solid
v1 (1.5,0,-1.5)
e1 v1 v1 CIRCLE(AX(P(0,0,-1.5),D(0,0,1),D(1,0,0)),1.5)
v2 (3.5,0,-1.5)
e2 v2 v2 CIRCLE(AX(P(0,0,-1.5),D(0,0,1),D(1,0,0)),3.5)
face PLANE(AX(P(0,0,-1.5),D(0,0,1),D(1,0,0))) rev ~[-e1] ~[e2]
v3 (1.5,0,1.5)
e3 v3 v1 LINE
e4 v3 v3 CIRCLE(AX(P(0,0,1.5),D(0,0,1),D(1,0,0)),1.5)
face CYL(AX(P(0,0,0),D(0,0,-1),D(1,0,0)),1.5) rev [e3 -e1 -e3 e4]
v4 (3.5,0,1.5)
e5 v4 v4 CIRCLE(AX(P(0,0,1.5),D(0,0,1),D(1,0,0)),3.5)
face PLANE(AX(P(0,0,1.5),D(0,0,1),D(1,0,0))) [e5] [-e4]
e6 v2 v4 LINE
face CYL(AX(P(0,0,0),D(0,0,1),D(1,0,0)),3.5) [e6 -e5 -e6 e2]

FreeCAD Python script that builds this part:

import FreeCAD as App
import Part
import Sketcher
from FreeCAD import Vector

doc = App.newDocument("Part")
body = doc.addObject("PartDesign::Body", "Body")

# Sketch on XY plane
sketch1 = body.newObject("Sketcher::SketchObject", "Sketch")
sketch1.AttachmentSupport = (doc.getObject("XY_Plane"), [""])
sketch1.MapMode = "FlatFace"
sketch1.addGeometry([
    Part.Circle(Vector(0, 0, 0), Vector(0, 0, 1), 3.5),
    Part.Circle(Vector(0, 0, 0), Vector(0, 0, 1), 1.5),
], False)
sketch1.addConstraint([
    Sketcher.Constraint("Coincident", 0, 3, -1, 1),
    Sketcher.Constraint("Coincident", 1, 3, -1, 1),
    Sketcher.Constraint("Diameter", 0, 7.0),
    Sketcher.Constraint("Diameter", 1, 3.0),
])
pad1 = body.newObject("PartDesign::Pad", "Pad")
pad1.Profile = sketch1
pad1.Length = 3
pad1.Midplane = True

doc.recompute()
